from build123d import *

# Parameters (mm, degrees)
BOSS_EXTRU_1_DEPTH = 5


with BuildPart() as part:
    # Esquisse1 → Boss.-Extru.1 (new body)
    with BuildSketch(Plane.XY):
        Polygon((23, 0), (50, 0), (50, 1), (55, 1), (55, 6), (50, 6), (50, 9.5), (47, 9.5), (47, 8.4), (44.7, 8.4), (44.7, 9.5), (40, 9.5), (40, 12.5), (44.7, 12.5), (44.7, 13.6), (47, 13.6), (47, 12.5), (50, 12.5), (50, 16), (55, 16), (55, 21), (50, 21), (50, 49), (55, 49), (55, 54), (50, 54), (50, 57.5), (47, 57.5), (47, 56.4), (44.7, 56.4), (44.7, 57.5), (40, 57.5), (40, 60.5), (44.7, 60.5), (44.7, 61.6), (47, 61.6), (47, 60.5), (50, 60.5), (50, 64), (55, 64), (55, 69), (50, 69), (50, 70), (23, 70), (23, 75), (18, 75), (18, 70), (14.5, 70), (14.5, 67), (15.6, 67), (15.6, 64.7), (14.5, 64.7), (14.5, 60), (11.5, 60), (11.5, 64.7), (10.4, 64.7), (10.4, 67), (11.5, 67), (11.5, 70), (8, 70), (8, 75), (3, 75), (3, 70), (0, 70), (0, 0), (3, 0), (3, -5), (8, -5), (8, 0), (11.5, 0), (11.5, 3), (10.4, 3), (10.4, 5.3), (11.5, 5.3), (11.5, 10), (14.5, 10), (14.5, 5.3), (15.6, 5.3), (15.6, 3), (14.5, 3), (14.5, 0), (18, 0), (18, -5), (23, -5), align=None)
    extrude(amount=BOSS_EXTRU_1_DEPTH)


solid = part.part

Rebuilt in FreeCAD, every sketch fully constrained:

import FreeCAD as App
import Part
import Sketcher

V = App.Vector
Q = App.Units.Quantity


def add_polygon(sketch, points):
    """Adds a closed chain of lines whose ends are joined by coincident constraints."""
    first, n = sketch.GeometryCount, len(points)
    for a, b in zip(points, points[1:] + points[:1]):
        sketch.addGeometry(Part.LineSegment(App.Vector(*a, 0), App.Vector(*b, 0)), False)
    for i in range(n):
        sketch.addConstraint(Sketcher.Constraint("Coincident", first + i, 2, first + (i + 1) % n, 1))

doc = App.newDocument("Part")
body = doc.addObject("PartDesign::Body", "Body")

# Sketch on XY plane
sketch1 = doc.addObject("Sketcher::SketchObject", "Sketch")
body.addObject(sketch1)
sketch1.AttachmentSupport = (doc.XY_Plane, [""])
sketch1.MapMode = "FlatFace"
add_polygon(sketch1, [(23, 0), (50, 0), (50, 1), (55, 1), (55, 6), (50, 6), (50, 9.5), (47, 9.5), (47, 8.4), (44.7, 8.4), (44.7, 9.5), (40, 9.5), (40, 12.5), (44.7, 12.5), (44.7, 13.6), (47, 13.6), (47, 12.5), (50, 12.5), (50, 16), (55, 16), (55, 21), (50, 21), (50, 49), (55, 49), (55, 54), (50, 54), (50, 57.5), (47, 57.5), (47, 56.4), (44.7, 56.4), (44.7, 57.5), (40, 57.5), (40, 60.5), (44.7, 60.5), (44.7, 61.6), (47, 61.6), (47, 60.5), (50, 60.5), (50, 64), (55, 64), (55, 69), (50, 69), (50, 70), (23, 70), (23, 75), (18, 75), (18, 70), (14.5, 70), (14.5, 67), (15.6, 67), (15.6, 64.7), (14.5, 64.7), (14.5, 60), (11.5, 60), (11.5, 64.7), (10.4, 64.7), (10.4, 67), (11.5, 67), (11.5, 70), (8, 70), (8, 75), (3, 75), (3, 70), (0, 70), (0, 0), (3, 0), (3, -5), (8, -5), (8, 0), (11.5, 0), (11.5, 3), (10.4, 3), (10.4, 5.3), (11.5, 5.3), (11.5, 10), (14.5, 10), (14.5, 5.3), (15.6, 5.3), (15.6, 3), (14.5, 3), (14.5, 0), (18, 0), (18, -5), (23, -5)])  # lines 0-83
sketch1.addConstraint([
    Sketcher.Constraint("Horizontal", 0),
    Sketcher.Constraint("Vertical", 1),
    Sketcher.Constraint("Horizontal", 2),
    Sketcher.Constraint("Vertical", 3),
    Sketcher.Constraint("Horizontal", 4),
    Sketcher.Constraint("Vertical", 5),
    Sketcher.Constraint("Horizontal", 6),
    Sketcher.Constraint("Vertical", 7),
    Sketcher.Constraint("Horizontal", 8),
    Sketcher.Constraint("Vertical", 9),
    Sketcher.Constraint("Horizontal", 10),
    Sketcher.Constraint("Vertical", 11),
    Sketcher.Constraint("Horizontal", 12),
    Sketcher.Constraint("Vertical", 13),
    Sketcher.Constraint("Horizontal", 14),
    Sketcher.Constraint("Vertical", 15),
    Sketcher.Constraint("Horizontal", 16),
    Sketcher.Constraint("Vertical", 17),
    Sketcher.Constraint("Horizontal", 18),
    Sketcher.Constraint("Vertical", 19),
    Sketcher.Constraint("Horizontal", 20),
    Sketcher.Constraint("Vertical", 21),
    Sketcher.Constraint("Horizontal", 22),
    Sketcher.Constraint("Vertical", 23),
    Sketcher.Constraint("Horizontal", 24),
    Sketcher.Constraint("Vertical", 25),
    Sketcher.Constraint("Horizontal", 26),
    Sketcher.Constraint("Vertical", 27),
    Sketcher.Constraint("Horizontal", 28),
    Sketcher.Constraint("Vertical", 29),
    Sketcher.Constraint("Horizontal", 30),
    Sketcher.Constraint("Vertical", 31),
    Sketcher.Constraint("Horizontal", 32),
    Sketcher.Constraint("Vertical", 33),
    Sketcher.Constraint("Horizontal", 34),
    Sketcher.Constraint("Vertical", 35),
    Sketcher.Constraint("Horizontal", 36),
    Sketcher.Constraint("Vertical", 37),
    Sketcher.Constraint("Horizontal", 38),
    Sketcher.Constraint("Vertical", 39),
    Sketcher.Constraint("Horizontal", 40),
    Sketcher.Constraint("Vertical", 41),
    Sketcher.Constraint("Horizontal", 42),
    Sketcher.Constraint("Vertical", 43),
    Sketcher.Constraint("Horizontal", 44),
    Sketcher.Constraint("Vertical", 45),
    Sketcher.Constraint("Horizontal", 46),
    Sketcher.Constraint("Vertical", 47),
    Sketcher.Constraint("Horizontal", 48),
    Sketcher.Constraint("Vertical", 49),
    Sketcher.Constraint("Horizontal", 50),
    Sketcher.Constraint("Vertical", 51),
    Sketcher.Constraint("Horizontal", 52),
    Sketcher.Constraint("Vertical", 53),
    Sketcher.Constraint("Horizontal", 54),
    Sketcher.Constraint("Vertical", 55),
    Sketcher.Constraint("Horizontal", 56),
    Sketcher.Constraint("Vertical", 57),
    Sketcher.Constraint("Horizontal", 58),
    Sketcher.Constraint("Vertical", 59),
    Sketcher.Constraint("Horizontal", 60),
    Sketcher.Constraint("Vertical", 61),
    Sketcher.Constraint("Horizontal", 62),
    Sketcher.Constraint("Vertical", 63),
    Sketcher.Constraint("Horizontal", 64),
    Sketcher.Constraint("Vertical", 65),
    Sketcher.Constraint("Horizontal", 66),
    Sketcher.Constraint("Vertical", 67),
    Sketcher.Constraint("Horizontal", 68),
    Sketcher.Constraint("Vertical", 69),
    Sketcher.Constraint("Horizontal", 70),
    Sketcher.Constraint("Vertical", 71),
    Sketcher.Constraint("Horizontal", 72),
    Sketcher.Constraint("Vertical", 73),
    Sketcher.Constraint("Horizontal", 74),
    Sketcher.Constraint("Vertical", 75),
    Sketcher.Constraint("Horizontal", 76),
    Sketcher.Constraint("Vertical", 77),
    Sketcher.Constraint("Horizontal", 78),
    Sketcher.Constraint("Vertical", 79),
    Sketcher.Constraint("Horizontal", 80),
    Sketcher.Constraint("Vertical", 81),
    Sketcher.Constraint("Horizontal", 82),
    Sketcher.Constraint("Vertical", 83),
    Sketcher.Constraint("Coincident", 63, 2, -1, 1),
    Sketcher.Constraint("PointOnObject", 0, 2, -1),
    Sketcher.Constraint("PointOnObject", 67, 2, -1),
    Sketcher.Constraint("PointOnObject", 79, 2, -1),
    Sketcher.Constraint("Horizontal", 6, 2, 9, 2),
    Sketcher.Constraint("Horizontal", 12, 2, 15, 2),
    Sketcher.Constraint("Horizontal", 26, 2, 29, 2),
    Sketcher.Constraint("Horizontal", 32, 2, 35, 2),
    Sketcher.Constraint("Horizontal", 42, 2, 45, 2),
    Sketcher.Constraint("Horizontal", 50, 2, 53, 2),
    Sketcher.Constraint("Horizontal", 48, 2, 55, 2),
    Sketcher.Constraint("Horizontal", 46, 2, 57, 2),
    Sketcher.Constraint("Horizontal", 44, 2, 59, 2),
    Sketcher.Constraint("Horizontal", 58, 2, 61, 2),
    Sketcher.Constraint("Horizontal", 72, 2, 75, 2),
    Sketcher.Constraint("Horizontal", 70, 2, 77, 2),
    Sketcher.Constraint("Horizontal", 66, 2, 81, 2),
    Sketcher.Constraint("Vertical", 1, 2, 4, 2),
    Sketcher.Constraint("Vertical", 9, 2, 12, 2),
    Sketcher.Constraint("Vertical", 7, 2, 14, 2),
    Sketcher.Constraint("Vertical", 5, 2, 16, 2),
    Sketcher.Constraint("Vertical", 3, 2, 18, 2),
    Sketcher.Constraint("Vertical", 17, 2, 20, 2),
    Sketcher.Constraint("Vertical", 19, 2, 22, 2),
    Sketcher.Constraint("Vertical", 21, 2, 24, 2),
    Sketcher.Constraint("Vertical", 15, 2, 26, 2),
    Sketcher.Constraint("Vertical", 13, 2, 28, 2),
    Sketcher.Constraint("Vertical", 11, 2, 30, 2),
    Sketcher.Constraint("Vertical", 29, 2, 32, 2),
    Sketcher.Constraint("Vertical", 27, 2, 34, 2),
    Sketcher.Constraint("Vertical", 25, 2, 36, 2),
    Sketcher.Constraint("Vertical", 23, 2, 38, 2),
    Sketcher.Constraint("Vertical", 37, 2, 40, 2),
    Sketcher.Constraint("Vertical", 47, 2, 50, 2),
    Sketcher.Constraint("Vertical", 53, 2, 56, 2),
    Sketcher.Constraint("Vertical", 61, 2, 64, 2),
    Sketcher.Constraint("Vertical", 59, 2, 66, 2),
    Sketcher.Constraint("Vertical", 57, 2, 68, 2),
    Sketcher.Constraint("Vertical", 55, 2, 70, 2),
    Sketcher.Constraint("Vertical", 69, 2, 72, 2),
    Sketcher.Constraint("Vertical", 51, 2, 74, 2),
    Sketcher.Constraint("Vertical", 49, 2, 76, 2),
    Sketcher.Constraint("Vertical", 75, 2, 78, 2),
    Sketcher.Constraint("Vertical", 45, 2, 80, 2),
    Sketcher.Constraint("Vertical", 43, 2, 82, 2),
    Sketcher.Constraint("Equal", 40, 44),
    Sketcher.Constraint("Equal", 36, 52),
    Sketcher.Constraint("Equal", 50, 54),
    Sketcher.Constraint("Equal", 46, 58),
    Sketcher.Constraint("Equal", 44, 60),
    Sketcher.Constraint("Equal", 52, 62),
    Sketcher.Constraint("Equal", 82, 3),
    Sketcher.Constraint("Equal", 80, 5),
    Sketcher.Constraint("Equal", 78, 7),
    Sketcher.Constraint("Equal", 74, 11),
    Sketcher.Constraint("Equal", 9, 13),
    Sketcher.Constraint("Equal", 5, 17),
    Sketcher.Constraint("Equal", 3, 19),
    Sketcher.Constraint("Equal", 19, 23),
    Sketcher.Constraint("Equal", 17, 25),
    Sketcher.Constraint("Equal", 15, 27),
    Sketcher.Constraint("Equal", 11, 31),
    Sketcher.Constraint("Equal", 29, 33),
    Sketcher.Constraint("Equal", 25, 37),
    Sketcher.Constraint("Equal", 23, 39),
    Sketcher.Constraint("Equal", 1, 41),
    Sketcher.Constraint("Equal", 39, 43),
    Sketcher.Constraint("Equal", 31, 47),
    Sketcher.Constraint("Equal", 34, 49),
    Sketcher.Constraint("Equal", 32, 51),
    Sketcher.Constraint("Equal", 61, 65),
    Sketcher.Constraint("Equal", 57, 69),
    Sketcher.Constraint("Equal", 55, 71),
    Sketcher.Constraint("Equal", 53, 73),
    Sketcher.Constraint("DistanceX", 0, 1, 0, 2, Q("27 mm")),
    Sketcher.Constraint("DistanceX", 2, 1, 2, 2, Q("5 mm")),
    Sketcher.Constraint("DistanceX", 6, 2, 6, 1, Q("3 mm")),
    Sketcher.Constraint("DistanceY", 1, 1, 1, 2, Q("1 mm")),
    Sketcher.Constraint("DistanceY", 21, 1, 21, 2, Q("28 mm")),
    Sketcher.Constraint("DistanceY", 63, 2, 63, 1, Q("70 mm")),
    Sketcher.Constraint("DistanceX", 8, 2, 8, 1, Q("2.3 mm")),
    Sketcher.Constraint("DistanceX", 10, 2, 10, 1, Q("4.7 mm")),
    Sketcher.Constraint("DistanceX", 48, 1, 48, 2, Q("1.1 mm")),
])
pad1 = doc.addObject("PartDesign::Pad", "Pad")
body.addObject(pad1)
pad1.Profile = sketch1
pad1.Length = 5

doc.recompute()
